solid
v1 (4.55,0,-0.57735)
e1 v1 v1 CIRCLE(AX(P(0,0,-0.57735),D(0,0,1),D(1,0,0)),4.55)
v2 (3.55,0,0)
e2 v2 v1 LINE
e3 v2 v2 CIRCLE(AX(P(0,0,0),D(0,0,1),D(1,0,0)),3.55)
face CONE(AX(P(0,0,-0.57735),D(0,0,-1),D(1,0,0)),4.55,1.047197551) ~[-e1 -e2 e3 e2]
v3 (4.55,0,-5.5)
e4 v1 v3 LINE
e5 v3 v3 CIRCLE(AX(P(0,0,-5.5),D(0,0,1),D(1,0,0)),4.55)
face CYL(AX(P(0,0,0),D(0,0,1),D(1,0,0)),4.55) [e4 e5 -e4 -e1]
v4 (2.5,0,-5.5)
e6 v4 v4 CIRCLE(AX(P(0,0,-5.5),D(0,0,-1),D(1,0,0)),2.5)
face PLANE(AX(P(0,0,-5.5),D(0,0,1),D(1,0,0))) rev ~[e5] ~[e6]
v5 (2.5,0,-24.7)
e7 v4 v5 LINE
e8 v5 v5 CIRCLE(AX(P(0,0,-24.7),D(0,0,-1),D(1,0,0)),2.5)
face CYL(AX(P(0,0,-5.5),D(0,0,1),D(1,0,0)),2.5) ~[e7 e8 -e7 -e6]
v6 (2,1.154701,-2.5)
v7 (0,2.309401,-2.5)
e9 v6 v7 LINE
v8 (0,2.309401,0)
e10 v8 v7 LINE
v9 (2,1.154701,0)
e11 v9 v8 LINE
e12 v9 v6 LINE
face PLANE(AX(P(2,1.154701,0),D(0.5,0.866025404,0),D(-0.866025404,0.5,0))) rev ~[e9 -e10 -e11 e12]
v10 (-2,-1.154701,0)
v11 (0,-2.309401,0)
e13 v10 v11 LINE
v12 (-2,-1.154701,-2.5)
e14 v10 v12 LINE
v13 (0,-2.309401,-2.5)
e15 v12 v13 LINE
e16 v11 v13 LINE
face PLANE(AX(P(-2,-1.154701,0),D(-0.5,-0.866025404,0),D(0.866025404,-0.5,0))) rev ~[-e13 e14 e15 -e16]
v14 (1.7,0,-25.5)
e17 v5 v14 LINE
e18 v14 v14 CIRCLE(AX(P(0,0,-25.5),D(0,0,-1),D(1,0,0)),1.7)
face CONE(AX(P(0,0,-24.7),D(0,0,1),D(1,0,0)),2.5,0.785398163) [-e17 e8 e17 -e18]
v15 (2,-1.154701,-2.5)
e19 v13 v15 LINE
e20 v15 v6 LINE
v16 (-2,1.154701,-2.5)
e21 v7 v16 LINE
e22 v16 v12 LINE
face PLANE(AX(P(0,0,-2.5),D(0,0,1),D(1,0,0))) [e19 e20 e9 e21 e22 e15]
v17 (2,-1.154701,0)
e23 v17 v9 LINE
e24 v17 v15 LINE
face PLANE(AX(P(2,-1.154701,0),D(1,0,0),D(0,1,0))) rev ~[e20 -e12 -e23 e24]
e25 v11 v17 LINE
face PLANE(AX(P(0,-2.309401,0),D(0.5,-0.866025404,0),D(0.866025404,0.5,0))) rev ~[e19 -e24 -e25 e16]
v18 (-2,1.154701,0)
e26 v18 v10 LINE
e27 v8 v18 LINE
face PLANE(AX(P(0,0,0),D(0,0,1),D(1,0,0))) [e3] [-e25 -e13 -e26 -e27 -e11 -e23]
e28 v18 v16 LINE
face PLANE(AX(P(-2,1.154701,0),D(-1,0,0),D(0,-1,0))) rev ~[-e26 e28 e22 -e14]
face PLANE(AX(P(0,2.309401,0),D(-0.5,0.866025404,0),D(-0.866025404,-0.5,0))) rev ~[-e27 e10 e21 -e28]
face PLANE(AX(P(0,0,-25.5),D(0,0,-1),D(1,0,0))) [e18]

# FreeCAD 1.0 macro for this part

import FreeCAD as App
import Part
import Sketcher
Q = App.Units.Quantity


def edges_at(feature, points):
    """Names of the edges that pass closest to the given points."""
    edges = feature.Shape.Edges
    near = lambda p: min(range(len(edges)), key=lambda i: edges[i].distToShape(Part.Vertex(*p))[0])
    return sorted({f"Edge{near(p) + 1}" for p in points})


def add_polygon(sketch, points):
    """Adds a closed chain of lines whose ends are joined by coincident constraints."""
    first, n = sketch.GeometryCount, len(points)
    for a, b in zip(points, points[1:] + points[:1]):
        sketch.addGeometry(Part.LineSegment(App.Vector(*a, 0), App.Vector(*b, 0)), False)
    for i in range(n):
        sketch.addConstraint(Sketcher.Constraint("Coincident", first + i, 2, first + (i + 1) % n, 1))

doc = App.newDocument("Part")
body = doc.addObject("PartDesign::Body", "Body")

# Sketch on XY plane
sketch1 = doc.addObject("Sketcher::SketchObject", "Sketch")
body.addObject(sketch1)
sketch1.AttachmentSupport = (doc.XY_Plane, [""])
sketch1.MapMode = "FlatFace"
sketch1.addGeometry(Part.Circle(App.Vector(0, 0, 0), App.Vector(0, 0, 1), 4.55), False)
sketch1.addConstraint(Sketcher.Constraint("Coincident", 0, 3, -1, 1))
sketch1.addConstraint(Sketcher.Constraint("Diameter", 0, 9.1))
pad1 = doc.addObject("PartDesign::Pad", "Pad")
body.addObject(pad1)
pad1.Profile = sketch1
pad1.Length = 5.5
pad1.Reversed = True

# Sketch on XY plane
sketch2 = doc.addObject("Sketcher::SketchObject", "Sketch001")
body.addObject(sketch2)
sketch2.AttachmentSupport = (doc.XY_Plane, [""])
sketch2.MapMode = "FlatFace"
sketch2.AttachmentOffset = App.Placement(App.Vector(0, 0, -5.5), App.Rotation())
sketch2.addGeometry(Part.Circle(App.Vector(0, 0, 0), App.Vector(0, 0, 1), 2.5), False)
sketch2.addConstraint(Sketcher.Constraint("Coincident", 0, 3, -1, 1))
sketch2.addConstraint(Sketcher.Constraint("Diameter", 0, 5.0))
pad2 = doc.addObject("PartDesign::Pad", "Pad001")
body.addObject(pad2)
pad2.Profile = sketch2
pad2.Length = 20
pad2.Reversed = True

# Sketch on XY plane
sketch3 = doc.addObject("Sketcher::SketchObject", "Sketch002")
body.addObject(sketch3)
sketch3.AttachmentSupport = (doc.XY_Plane, [""])
sketch3.MapMode = "FlatFace"
add_polygon(sketch3, [(-2, -1.154701), (0, -2.309401), (2, -1.154701), (2, 1.154701), (0, 2.309401), (-2, 1.154701)])  # lines 0-5
sketch3.addConstraint(Sketcher.Constraint("Vertical", 2))
sketch3.addConstraint(Sketcher.Constraint("Vertical", 5))
sketch3.addConstraint(Sketcher.Constraint("Symmetric", 0, 2, 3, 2, -1, 1))
sketch3.addConstraint(Sketcher.Constraint("Symmetric", 1, 2, 4, 2, -1, 1))
sketch3.addConstraint(Sketcher.Constraint("PointOnObject", 0, 2, -2))
sketch3.addConstraint(Sketcher.Constraint("Parallel", 0, 3))
sketch3.addConstraint(Sketcher.Constraint("Horizontal", 2, 2, 4, 2))
sketch3.addConstraint(Sketcher.Constraint("Angle", 0, Q("-30 deg")))
sketch3.addConstraint(Sketcher.Constraint("DistanceX", -1, 1, 1, 2, 2.0))
sketch3.addConstraint(Sketcher.Constraint("DistanceY", 2, 1, 2, 2, 2.309401))
pocket1 = doc.addObject("PartDesign::Pocket", "Pocket")
body.addObject(pocket1)
pocket1.Profile = sketch3
pocket1.Length = 2.5
doc.recompute()

chamfer = doc.addObject("PartDesign::Chamfer", "Chamfer")
body.addObject(chamfer)
chamfer.Base = (pocket1, edges_at(pocket1, [(-4.55, 0, 0)]))
chamfer.ChamferType = "Two distances"
chamfer.Size = 1
chamfer.Size2 = 0.57735
chamfer.FlipDirection = True
doc.recompute()

chamfer2 = doc.addObject("PartDesign::Chamfer", "Chamfer001")
body.addObject(chamfer2)
chamfer2.Base = (chamfer, edges_at(chamfer, [(-2.5, 0, -25.5)]))
chamfer2.Size = 0.8

doc.recompute()
